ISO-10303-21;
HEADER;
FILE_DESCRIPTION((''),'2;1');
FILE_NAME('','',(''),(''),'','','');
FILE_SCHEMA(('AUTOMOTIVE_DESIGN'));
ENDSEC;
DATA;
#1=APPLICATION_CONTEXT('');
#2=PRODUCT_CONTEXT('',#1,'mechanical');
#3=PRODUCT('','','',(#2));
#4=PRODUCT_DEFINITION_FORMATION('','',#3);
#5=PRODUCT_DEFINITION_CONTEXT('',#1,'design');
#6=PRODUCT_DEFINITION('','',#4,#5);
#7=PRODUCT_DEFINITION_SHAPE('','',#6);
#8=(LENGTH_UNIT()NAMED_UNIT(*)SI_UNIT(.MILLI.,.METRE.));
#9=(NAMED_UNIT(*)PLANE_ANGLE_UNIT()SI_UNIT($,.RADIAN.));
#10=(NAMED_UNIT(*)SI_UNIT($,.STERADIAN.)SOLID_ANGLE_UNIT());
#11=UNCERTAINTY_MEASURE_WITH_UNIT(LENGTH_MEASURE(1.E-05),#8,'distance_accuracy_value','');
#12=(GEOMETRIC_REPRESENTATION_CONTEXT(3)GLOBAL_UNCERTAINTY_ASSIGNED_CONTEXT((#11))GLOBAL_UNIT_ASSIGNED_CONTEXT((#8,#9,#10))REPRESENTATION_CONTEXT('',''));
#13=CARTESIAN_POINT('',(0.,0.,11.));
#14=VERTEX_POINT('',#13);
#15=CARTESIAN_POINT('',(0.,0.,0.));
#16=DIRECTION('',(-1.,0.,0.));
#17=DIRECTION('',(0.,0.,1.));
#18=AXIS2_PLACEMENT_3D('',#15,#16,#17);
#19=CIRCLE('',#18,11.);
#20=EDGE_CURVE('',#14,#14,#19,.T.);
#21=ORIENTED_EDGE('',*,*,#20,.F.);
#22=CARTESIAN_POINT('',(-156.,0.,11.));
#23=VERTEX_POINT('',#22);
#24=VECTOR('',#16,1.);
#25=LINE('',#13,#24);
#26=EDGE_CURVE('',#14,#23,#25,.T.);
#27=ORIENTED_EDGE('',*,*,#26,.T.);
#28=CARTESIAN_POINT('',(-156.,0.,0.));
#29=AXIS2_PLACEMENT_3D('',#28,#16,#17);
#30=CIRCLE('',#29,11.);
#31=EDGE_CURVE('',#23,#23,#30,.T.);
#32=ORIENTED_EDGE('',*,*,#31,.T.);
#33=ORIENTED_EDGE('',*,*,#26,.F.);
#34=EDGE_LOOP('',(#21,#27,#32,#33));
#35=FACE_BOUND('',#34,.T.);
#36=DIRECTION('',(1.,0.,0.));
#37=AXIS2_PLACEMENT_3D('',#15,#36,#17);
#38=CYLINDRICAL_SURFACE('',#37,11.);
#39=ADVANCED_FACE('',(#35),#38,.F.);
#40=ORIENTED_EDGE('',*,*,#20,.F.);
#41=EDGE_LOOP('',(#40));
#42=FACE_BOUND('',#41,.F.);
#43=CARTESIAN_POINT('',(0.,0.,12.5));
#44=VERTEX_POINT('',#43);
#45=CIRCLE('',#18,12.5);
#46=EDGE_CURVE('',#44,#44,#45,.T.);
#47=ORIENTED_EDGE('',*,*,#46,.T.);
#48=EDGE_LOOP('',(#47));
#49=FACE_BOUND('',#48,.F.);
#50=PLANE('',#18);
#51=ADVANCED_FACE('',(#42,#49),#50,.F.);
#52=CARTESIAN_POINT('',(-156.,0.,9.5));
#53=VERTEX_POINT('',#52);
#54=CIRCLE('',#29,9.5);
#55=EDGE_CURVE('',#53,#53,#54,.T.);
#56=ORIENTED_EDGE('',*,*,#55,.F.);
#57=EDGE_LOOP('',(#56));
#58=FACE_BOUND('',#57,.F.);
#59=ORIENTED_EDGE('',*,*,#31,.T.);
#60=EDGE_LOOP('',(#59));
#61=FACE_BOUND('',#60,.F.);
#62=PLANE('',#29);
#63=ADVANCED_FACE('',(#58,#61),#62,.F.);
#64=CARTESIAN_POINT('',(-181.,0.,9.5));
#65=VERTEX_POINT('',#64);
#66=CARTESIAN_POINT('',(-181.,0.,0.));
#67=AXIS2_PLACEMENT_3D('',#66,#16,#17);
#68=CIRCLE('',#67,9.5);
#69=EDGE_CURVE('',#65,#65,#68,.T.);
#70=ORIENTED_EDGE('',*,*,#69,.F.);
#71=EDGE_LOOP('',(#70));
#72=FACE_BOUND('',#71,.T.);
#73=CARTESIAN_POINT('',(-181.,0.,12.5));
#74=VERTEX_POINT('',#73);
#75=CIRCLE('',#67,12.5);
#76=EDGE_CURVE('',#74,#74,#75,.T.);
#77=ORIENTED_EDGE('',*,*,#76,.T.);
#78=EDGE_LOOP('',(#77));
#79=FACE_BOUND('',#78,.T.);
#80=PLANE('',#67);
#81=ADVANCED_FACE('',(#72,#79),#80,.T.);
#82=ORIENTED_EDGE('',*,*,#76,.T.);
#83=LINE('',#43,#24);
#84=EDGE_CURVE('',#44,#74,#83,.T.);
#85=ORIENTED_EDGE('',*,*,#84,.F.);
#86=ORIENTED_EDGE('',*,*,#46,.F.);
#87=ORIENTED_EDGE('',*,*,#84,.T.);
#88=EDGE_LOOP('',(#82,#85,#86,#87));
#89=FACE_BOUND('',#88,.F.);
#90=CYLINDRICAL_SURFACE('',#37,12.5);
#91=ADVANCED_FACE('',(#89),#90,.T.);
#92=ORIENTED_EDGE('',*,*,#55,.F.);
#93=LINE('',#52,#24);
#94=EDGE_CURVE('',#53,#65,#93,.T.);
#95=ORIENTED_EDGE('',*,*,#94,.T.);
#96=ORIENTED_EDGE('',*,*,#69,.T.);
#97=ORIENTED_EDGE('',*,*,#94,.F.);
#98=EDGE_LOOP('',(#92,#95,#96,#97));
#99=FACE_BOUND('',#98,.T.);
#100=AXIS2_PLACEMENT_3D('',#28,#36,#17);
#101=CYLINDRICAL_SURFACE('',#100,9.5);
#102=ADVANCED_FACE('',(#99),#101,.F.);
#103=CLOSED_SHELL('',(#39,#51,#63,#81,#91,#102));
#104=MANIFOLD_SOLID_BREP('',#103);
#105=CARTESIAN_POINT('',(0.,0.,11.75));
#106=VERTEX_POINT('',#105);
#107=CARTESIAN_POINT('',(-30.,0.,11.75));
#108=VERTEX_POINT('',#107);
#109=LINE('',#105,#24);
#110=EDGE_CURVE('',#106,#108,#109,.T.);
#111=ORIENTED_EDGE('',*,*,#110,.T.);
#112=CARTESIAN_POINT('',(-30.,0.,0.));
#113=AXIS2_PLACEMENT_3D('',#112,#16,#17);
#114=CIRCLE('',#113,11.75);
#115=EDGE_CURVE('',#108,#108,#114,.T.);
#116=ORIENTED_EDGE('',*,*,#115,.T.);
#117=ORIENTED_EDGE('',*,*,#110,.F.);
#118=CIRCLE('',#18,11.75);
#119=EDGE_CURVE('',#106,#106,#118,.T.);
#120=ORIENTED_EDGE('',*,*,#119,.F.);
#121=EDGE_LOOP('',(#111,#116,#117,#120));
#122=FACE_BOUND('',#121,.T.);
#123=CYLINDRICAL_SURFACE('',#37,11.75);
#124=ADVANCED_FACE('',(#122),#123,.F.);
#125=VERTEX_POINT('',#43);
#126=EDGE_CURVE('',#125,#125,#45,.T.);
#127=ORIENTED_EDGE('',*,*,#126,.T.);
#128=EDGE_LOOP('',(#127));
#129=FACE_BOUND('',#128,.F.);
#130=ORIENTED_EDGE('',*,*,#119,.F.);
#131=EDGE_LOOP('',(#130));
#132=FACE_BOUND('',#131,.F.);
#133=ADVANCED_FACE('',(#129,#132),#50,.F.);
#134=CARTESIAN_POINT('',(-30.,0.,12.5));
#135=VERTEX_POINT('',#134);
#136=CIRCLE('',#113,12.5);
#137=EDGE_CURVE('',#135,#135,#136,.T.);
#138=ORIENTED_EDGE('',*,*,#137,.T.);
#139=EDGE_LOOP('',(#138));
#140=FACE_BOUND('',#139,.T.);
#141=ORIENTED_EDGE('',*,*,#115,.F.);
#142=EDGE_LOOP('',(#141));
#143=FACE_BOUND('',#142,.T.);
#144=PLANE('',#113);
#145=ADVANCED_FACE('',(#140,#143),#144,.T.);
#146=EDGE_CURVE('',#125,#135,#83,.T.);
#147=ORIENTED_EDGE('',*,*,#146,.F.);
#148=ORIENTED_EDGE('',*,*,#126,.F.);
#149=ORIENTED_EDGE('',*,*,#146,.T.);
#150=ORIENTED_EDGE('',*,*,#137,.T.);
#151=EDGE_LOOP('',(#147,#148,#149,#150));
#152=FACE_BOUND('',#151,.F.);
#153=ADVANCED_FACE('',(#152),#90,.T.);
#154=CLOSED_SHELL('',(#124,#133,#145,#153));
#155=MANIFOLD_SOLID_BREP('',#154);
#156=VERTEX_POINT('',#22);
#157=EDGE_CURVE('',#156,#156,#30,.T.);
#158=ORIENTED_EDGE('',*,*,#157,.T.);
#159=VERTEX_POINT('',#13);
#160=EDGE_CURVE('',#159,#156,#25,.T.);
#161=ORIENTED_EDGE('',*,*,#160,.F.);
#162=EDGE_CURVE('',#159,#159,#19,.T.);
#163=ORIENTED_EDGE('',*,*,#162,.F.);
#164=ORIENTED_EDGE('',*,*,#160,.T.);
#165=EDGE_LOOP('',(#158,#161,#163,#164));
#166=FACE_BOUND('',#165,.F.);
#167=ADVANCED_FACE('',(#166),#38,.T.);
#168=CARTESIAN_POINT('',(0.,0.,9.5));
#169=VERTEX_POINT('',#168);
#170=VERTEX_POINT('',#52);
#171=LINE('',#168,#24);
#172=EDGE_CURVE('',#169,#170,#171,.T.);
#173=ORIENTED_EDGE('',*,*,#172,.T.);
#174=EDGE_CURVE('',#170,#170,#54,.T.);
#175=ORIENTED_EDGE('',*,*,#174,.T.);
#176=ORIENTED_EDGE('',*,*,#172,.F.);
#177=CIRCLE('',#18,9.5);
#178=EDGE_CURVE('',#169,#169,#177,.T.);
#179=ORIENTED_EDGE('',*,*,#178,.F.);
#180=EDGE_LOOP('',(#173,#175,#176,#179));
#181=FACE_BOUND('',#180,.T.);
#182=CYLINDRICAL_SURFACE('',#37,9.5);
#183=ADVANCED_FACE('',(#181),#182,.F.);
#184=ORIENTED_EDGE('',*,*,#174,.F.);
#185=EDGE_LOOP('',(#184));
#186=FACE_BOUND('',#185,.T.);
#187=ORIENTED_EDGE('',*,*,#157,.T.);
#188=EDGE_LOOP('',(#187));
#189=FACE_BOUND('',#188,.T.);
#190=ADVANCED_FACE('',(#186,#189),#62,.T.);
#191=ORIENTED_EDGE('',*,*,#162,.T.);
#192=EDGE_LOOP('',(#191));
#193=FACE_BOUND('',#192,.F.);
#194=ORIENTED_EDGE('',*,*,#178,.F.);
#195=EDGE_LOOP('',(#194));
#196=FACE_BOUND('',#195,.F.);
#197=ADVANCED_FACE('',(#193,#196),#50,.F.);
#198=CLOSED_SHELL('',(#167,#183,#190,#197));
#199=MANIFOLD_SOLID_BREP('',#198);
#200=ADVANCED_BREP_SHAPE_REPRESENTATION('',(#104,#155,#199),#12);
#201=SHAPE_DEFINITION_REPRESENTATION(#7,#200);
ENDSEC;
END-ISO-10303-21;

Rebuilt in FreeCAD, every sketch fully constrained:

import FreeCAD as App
import Part
import Sketcher
from FreeCAD import Vector
Q = App.Units.Quantity

doc = App.newDocument("Part")
params = doc.addObject("Spreadsheet::Sheet", "Params")
for row, (alias, value) in enumerate([
    ("sketch1_diameter", "19 mm"),
    ("pad1_length", "156 mm"),
    ("sketch2_diameter", "22 mm"),
    ("pad2_length", "156 mm"),
    ("sketch3_diameter", "19 mm"),
    ("pad3_length", "25 mm"),
    ("sketch4_diameter", "22 mm"),
    ("pad4_length", "156 mm"),
    ("sketch5_diameter", "25 mm"),
    ("pad5_length", "181 mm"),
    ("sketch6_diameter", "23.5 mm"),
    ("pad6_length", "30 mm"),
    ("sketch7_diameter", "25 mm"),
    ("pad7_length", "30 mm"),
], start=1):
    params.set(f"A{row}", alias)
    params.set(f"B{row}", "=" + value)
    params.setAlias(f"B{row}", alias)

body = doc.addObject("PartDesign::Body", "Body")

# Sketch on XY plane
sketch1 = body.newObject("Sketcher::SketchObject", "Sketch")
sketch1.AttachmentSupport = (doc.getObject("XY_Plane"), [""])
sketch1.MapMode = "FlatFace"
sketch1.addGeometry(Part.Circle(Vector(0, 0, 0), Vector(0, 0, 1), 10), False)
sketch1.addConstraint(Sketcher.Constraint("Coincident", 0, 3, -1, 1))
sketch1.addConstraint(Sketcher.Constraint("Diameter", 0, Q("19 mm")))
sketch1.setExpression("Constraints[1]", "Params.sketch1_diameter")
pad1 = body.newObject("PartDesign::Pad", "Pad")
pad1.Profile = sketch1
pad1.setExpression("Length", "Params.pad1_length")
body2 = doc.addObject("PartDesign::Body", "Body001")
doc.recompute()

body.Placement = App.Placement(Vector(0, 0, 0), App.Rotation(Vector(0, 1, 0), 270))
boolean = body2.newObject("PartDesign::Boolean", "Boolean")
boolean.Type = "Fuse"
boolean.addObjects([body])
body3 = doc.addObject("PartDesign::Body", "Body002")

# Sketch on XY plane
sketch2 = body3.newObject("Sketcher::SketchObject", "Sketch001")
sketch2.AttachmentSupport = (doc.getObject("XY_Plane002"), [""])
sketch2.MapMode = "FlatFace"
sketch2.addGeometry(Part.Circle(Vector(0, 0, 0), Vector(0, 0, 1), 11), False)
sketch2.addConstraint(Sketcher.Constraint("Coincident", 0, 3, -1, 1))
sketch2.addConstraint(Sketcher.Constraint("Diameter", 0, Q("22 mm")))
sketch2.setExpression("Constraints[1]", "Params.sketch2_diameter")
pad2 = body3.newObject("PartDesign::Pad", "Pad001")
pad2.Profile = sketch2
pad2.setExpression("Length", "Params.pad2_length")
body4 = doc.addObject("PartDesign::Body", "Body003")
doc.recompute()

body3.Placement = App.Placement(Vector(0, 0, 0), App.Rotation(Vector(0, 1, 0), 270))
boolean2 = body4.newObject("PartDesign::Boolean", "Boolean001")
boolean2.Type = "Fuse"
boolean2.addObjects([body3])
doc.recompute()

boolean3 = body4.newObject("PartDesign::Boolean", "Boolean002")
boolean3.Type = "Cut"
boolean3.addObjects([body2])
body5 = doc.addObject("PartDesign::Body", "Body004")

# Sketch on XY plane
sketch3 = body5.newObject("Sketcher::SketchObject", "Sketch002")
sketch3.AttachmentSupport = (doc.getObject("XY_Plane004"), [""])
sketch3.MapMode = "FlatFace"
sketch3.addGeometry(Part.Circle(Vector(0, 0, 0), Vector(0, 0, 1), 10), False)
sketch3.addConstraint(Sketcher.Constraint("Coincident", 0, 3, -1, 1))
sketch3.addConstraint(Sketcher.Constraint("Diameter", 0, Q("19 mm")))
sketch3.setExpression("Constraints[1]", "Params.sketch3_diameter")
pad3 = body5.newObject("PartDesign::Pad", "Pad002")
pad3.Profile = sketch3
pad3.setExpression("Length", "Params.pad3_length")
body6 = doc.addObject("PartDesign::Body", "Body005")
doc.recompute()

body5.Placement = App.Placement(Vector(0, 0, 0), App.Rotation(Vector(0, 1, 0), 270))
boolean4 = body6.newObject("PartDesign::Boolean", "Boolean003")
boolean4.Type = "Fuse"
boolean4.addObjects([body5])
body7 = doc.addObject("PartDesign::Body", "Body006")
doc.recompute()

body6.Placement = App.Placement(Vector(-156, 0, 0), App.Rotation(Vector(0, 0, 1), 0))
boolean5 = body7.newObject("PartDesign::Boolean", "Boolean004")
boolean5.Type = "Fuse"
boolean5.addObjects([body6])
body8 = doc.addObject("PartDesign::Body", "Body007")

# Sketch on XY plane
sketch4 = body8.newObject("Sketcher::SketchObject", "Sketch003")
sketch4.AttachmentSupport = (doc.getObject("XY_Plane007"), [""])
sketch4.MapMode = "FlatFace"
sketch4.addGeometry(Part.Circle(Vector(0, 0, 0), Vector(0, 0, 1), 11), False)
sketch4.addConstraint(Sketcher.Constraint("Coincident", 0, 3, -1, 1))
sketch4.addConstraint(Sketcher.Constraint("Diameter", 0, Q("22 mm")))
sketch4.setExpression("Constraints[1]", "Params.sketch4_diameter")
pad4 = body8.newObject("PartDesign::Pad", "Pad003")
pad4.Profile = sketch4
pad4.setExpression("Length", "Params.pad4_length")
body9 = doc.addObject("PartDesign::Body", "Body008")
doc.recompute()

body8.Placement = App.Placement(Vector(0, 0, 0), App.Rotation(Vector(0, 1, 0), 270))
boolean6 = body9.newObject("PartDesign::Boolean", "Boolean005")
boolean6.Type = "Fuse"
boolean6.addObjects([body8])
body10 = doc.addObject("PartDesign::Body", "Body009")

# Sketch on XY plane
sketch5 = body10.newObject("Sketcher::SketchObject", "Sketch004")
sketch5.AttachmentSupport = (doc.getObject("XY_Plane009"), [""])
sketch5.MapMode = "FlatFace"
sketch5.addGeometry(Part.Circle(Vector(0, 0, 0), Vector(0, 0, 1), 12), False)
sketch5.addConstraint(Sketcher.Constraint("Coincident", 0, 3, -1, 1))
sketch5.addConstraint(Sketcher.Constraint("Diameter", 0, Q("25 mm")))
sketch5.setExpression("Constraints[1]", "Params.sketch5_diameter")
pad5 = body10.newObject("PartDesign::Pad", "Pad004")
pad5.Profile = sketch5
pad5.setExpression("Length", "Params.pad5_length")
body11 = doc.addObject("PartDesign::Body", "Body010")
doc.recompute()

body10.Placement = App.Placement(Vector(0, 0, 0), App.Rotation(Vector(0, 1, 0), 270))
boolean7 = body11.newObject("PartDesign::Boolean", "Boolean006")
boolean7.Type = "Fuse"
boolean7.addObjects([body10])
doc.recompute()

boolean8 = body11.newObject("PartDesign::Boolean", "Boolean007")
boolean8.Type = "Cut"
boolean8.addObjects([body9])
doc.recompute()

boolean9 = body11.newObject("PartDesign::Boolean", "Boolean008")
boolean9.Type = "Cut"
boolean9.addObjects([body7])
body12 = doc.addObject("PartDesign::Body", "Body011")

# Sketch on XY plane
sketch6 = body12.newObject("Sketcher::SketchObject", "Sketch005")
sketch6.AttachmentSupport = (doc.getObject("XY_Plane011"), [""])
sketch6.MapMode = "FlatFace"
sketch6.addGeometry(Part.Circle(Vector(0, 0, 0), Vector(0, 0, 1), 12), False)
sketch6.addConstraint(Sketcher.Constraint("Coincident", 0, 3, -1, 1))
sketch6.addConstraint(Sketcher.Constraint("Diameter", 0, Q("23.5 mm")))
sketch6.setExpression("Constraints[1]", "Params.sketch6_diameter")
pad6 = body12.newObject("PartDesign::Pad", "Pad005")
pad6.Profile = sketch6
pad6.setExpression("Length", "Params.pad6_length")
body13 = doc.addObject("PartDesign::Body", "Body012")
doc.recompute()

body12.Placement = App.Placement(Vector(0, 0, 0), App.Rotation(Vector(0, 1, 0), 270))
boolean10 = body13.newObject("PartDesign::Boolean", "Boolean009")
boolean10.Type = "Fuse"
boolean10.addObjects([body12])
body14 = doc.addObject("PartDesign::Body", "Body013")

# Sketch on XY plane
sketch7 = body14.newObject("Sketcher::SketchObject", "Sketch006")
sketch7.AttachmentSupport = (doc.getObject("XY_Plane013"), [""])
sketch7.MapMode = "FlatFace"
sketch7.addGeometry(Part.Circle(Vector(0, 0, 0), Vector(0, 0, 1), 12), False)
sketch7.addConstraint(Sketcher.Constraint("Coincident", 0, 3, -1, 1))
sketch7.addConstraint(Sketcher.Constraint("Diameter", 0, Q("25 mm")))
sketch7.setExpression("Constraints[1]", "Params.sketch7_diameter")
pad7 = body14.newObject("PartDesign::Pad", "Pad006")
pad7.Profile = sketch7
pad7.setExpression("Length", "Params.pad7_length")
body15 = doc.addObject("PartDesign::Body", "Body014")
doc.recompute()

body14.Placement = App.Placement(Vector(0, 0, 0), App.Rotation(Vector(0, 1, 0), 270))
boolean11 = body15.newObject("PartDesign::Boolean", "Boolean010")
boolean11.Type = "Fuse"
boolean11.addObjects([body14])
doc.recompute()

boolean12 = body15.newObject("PartDesign::Boolean", "Boolean011")
boolean12.Type = "Cut"
boolean12.addObjects([body13])

doc.recompute()
